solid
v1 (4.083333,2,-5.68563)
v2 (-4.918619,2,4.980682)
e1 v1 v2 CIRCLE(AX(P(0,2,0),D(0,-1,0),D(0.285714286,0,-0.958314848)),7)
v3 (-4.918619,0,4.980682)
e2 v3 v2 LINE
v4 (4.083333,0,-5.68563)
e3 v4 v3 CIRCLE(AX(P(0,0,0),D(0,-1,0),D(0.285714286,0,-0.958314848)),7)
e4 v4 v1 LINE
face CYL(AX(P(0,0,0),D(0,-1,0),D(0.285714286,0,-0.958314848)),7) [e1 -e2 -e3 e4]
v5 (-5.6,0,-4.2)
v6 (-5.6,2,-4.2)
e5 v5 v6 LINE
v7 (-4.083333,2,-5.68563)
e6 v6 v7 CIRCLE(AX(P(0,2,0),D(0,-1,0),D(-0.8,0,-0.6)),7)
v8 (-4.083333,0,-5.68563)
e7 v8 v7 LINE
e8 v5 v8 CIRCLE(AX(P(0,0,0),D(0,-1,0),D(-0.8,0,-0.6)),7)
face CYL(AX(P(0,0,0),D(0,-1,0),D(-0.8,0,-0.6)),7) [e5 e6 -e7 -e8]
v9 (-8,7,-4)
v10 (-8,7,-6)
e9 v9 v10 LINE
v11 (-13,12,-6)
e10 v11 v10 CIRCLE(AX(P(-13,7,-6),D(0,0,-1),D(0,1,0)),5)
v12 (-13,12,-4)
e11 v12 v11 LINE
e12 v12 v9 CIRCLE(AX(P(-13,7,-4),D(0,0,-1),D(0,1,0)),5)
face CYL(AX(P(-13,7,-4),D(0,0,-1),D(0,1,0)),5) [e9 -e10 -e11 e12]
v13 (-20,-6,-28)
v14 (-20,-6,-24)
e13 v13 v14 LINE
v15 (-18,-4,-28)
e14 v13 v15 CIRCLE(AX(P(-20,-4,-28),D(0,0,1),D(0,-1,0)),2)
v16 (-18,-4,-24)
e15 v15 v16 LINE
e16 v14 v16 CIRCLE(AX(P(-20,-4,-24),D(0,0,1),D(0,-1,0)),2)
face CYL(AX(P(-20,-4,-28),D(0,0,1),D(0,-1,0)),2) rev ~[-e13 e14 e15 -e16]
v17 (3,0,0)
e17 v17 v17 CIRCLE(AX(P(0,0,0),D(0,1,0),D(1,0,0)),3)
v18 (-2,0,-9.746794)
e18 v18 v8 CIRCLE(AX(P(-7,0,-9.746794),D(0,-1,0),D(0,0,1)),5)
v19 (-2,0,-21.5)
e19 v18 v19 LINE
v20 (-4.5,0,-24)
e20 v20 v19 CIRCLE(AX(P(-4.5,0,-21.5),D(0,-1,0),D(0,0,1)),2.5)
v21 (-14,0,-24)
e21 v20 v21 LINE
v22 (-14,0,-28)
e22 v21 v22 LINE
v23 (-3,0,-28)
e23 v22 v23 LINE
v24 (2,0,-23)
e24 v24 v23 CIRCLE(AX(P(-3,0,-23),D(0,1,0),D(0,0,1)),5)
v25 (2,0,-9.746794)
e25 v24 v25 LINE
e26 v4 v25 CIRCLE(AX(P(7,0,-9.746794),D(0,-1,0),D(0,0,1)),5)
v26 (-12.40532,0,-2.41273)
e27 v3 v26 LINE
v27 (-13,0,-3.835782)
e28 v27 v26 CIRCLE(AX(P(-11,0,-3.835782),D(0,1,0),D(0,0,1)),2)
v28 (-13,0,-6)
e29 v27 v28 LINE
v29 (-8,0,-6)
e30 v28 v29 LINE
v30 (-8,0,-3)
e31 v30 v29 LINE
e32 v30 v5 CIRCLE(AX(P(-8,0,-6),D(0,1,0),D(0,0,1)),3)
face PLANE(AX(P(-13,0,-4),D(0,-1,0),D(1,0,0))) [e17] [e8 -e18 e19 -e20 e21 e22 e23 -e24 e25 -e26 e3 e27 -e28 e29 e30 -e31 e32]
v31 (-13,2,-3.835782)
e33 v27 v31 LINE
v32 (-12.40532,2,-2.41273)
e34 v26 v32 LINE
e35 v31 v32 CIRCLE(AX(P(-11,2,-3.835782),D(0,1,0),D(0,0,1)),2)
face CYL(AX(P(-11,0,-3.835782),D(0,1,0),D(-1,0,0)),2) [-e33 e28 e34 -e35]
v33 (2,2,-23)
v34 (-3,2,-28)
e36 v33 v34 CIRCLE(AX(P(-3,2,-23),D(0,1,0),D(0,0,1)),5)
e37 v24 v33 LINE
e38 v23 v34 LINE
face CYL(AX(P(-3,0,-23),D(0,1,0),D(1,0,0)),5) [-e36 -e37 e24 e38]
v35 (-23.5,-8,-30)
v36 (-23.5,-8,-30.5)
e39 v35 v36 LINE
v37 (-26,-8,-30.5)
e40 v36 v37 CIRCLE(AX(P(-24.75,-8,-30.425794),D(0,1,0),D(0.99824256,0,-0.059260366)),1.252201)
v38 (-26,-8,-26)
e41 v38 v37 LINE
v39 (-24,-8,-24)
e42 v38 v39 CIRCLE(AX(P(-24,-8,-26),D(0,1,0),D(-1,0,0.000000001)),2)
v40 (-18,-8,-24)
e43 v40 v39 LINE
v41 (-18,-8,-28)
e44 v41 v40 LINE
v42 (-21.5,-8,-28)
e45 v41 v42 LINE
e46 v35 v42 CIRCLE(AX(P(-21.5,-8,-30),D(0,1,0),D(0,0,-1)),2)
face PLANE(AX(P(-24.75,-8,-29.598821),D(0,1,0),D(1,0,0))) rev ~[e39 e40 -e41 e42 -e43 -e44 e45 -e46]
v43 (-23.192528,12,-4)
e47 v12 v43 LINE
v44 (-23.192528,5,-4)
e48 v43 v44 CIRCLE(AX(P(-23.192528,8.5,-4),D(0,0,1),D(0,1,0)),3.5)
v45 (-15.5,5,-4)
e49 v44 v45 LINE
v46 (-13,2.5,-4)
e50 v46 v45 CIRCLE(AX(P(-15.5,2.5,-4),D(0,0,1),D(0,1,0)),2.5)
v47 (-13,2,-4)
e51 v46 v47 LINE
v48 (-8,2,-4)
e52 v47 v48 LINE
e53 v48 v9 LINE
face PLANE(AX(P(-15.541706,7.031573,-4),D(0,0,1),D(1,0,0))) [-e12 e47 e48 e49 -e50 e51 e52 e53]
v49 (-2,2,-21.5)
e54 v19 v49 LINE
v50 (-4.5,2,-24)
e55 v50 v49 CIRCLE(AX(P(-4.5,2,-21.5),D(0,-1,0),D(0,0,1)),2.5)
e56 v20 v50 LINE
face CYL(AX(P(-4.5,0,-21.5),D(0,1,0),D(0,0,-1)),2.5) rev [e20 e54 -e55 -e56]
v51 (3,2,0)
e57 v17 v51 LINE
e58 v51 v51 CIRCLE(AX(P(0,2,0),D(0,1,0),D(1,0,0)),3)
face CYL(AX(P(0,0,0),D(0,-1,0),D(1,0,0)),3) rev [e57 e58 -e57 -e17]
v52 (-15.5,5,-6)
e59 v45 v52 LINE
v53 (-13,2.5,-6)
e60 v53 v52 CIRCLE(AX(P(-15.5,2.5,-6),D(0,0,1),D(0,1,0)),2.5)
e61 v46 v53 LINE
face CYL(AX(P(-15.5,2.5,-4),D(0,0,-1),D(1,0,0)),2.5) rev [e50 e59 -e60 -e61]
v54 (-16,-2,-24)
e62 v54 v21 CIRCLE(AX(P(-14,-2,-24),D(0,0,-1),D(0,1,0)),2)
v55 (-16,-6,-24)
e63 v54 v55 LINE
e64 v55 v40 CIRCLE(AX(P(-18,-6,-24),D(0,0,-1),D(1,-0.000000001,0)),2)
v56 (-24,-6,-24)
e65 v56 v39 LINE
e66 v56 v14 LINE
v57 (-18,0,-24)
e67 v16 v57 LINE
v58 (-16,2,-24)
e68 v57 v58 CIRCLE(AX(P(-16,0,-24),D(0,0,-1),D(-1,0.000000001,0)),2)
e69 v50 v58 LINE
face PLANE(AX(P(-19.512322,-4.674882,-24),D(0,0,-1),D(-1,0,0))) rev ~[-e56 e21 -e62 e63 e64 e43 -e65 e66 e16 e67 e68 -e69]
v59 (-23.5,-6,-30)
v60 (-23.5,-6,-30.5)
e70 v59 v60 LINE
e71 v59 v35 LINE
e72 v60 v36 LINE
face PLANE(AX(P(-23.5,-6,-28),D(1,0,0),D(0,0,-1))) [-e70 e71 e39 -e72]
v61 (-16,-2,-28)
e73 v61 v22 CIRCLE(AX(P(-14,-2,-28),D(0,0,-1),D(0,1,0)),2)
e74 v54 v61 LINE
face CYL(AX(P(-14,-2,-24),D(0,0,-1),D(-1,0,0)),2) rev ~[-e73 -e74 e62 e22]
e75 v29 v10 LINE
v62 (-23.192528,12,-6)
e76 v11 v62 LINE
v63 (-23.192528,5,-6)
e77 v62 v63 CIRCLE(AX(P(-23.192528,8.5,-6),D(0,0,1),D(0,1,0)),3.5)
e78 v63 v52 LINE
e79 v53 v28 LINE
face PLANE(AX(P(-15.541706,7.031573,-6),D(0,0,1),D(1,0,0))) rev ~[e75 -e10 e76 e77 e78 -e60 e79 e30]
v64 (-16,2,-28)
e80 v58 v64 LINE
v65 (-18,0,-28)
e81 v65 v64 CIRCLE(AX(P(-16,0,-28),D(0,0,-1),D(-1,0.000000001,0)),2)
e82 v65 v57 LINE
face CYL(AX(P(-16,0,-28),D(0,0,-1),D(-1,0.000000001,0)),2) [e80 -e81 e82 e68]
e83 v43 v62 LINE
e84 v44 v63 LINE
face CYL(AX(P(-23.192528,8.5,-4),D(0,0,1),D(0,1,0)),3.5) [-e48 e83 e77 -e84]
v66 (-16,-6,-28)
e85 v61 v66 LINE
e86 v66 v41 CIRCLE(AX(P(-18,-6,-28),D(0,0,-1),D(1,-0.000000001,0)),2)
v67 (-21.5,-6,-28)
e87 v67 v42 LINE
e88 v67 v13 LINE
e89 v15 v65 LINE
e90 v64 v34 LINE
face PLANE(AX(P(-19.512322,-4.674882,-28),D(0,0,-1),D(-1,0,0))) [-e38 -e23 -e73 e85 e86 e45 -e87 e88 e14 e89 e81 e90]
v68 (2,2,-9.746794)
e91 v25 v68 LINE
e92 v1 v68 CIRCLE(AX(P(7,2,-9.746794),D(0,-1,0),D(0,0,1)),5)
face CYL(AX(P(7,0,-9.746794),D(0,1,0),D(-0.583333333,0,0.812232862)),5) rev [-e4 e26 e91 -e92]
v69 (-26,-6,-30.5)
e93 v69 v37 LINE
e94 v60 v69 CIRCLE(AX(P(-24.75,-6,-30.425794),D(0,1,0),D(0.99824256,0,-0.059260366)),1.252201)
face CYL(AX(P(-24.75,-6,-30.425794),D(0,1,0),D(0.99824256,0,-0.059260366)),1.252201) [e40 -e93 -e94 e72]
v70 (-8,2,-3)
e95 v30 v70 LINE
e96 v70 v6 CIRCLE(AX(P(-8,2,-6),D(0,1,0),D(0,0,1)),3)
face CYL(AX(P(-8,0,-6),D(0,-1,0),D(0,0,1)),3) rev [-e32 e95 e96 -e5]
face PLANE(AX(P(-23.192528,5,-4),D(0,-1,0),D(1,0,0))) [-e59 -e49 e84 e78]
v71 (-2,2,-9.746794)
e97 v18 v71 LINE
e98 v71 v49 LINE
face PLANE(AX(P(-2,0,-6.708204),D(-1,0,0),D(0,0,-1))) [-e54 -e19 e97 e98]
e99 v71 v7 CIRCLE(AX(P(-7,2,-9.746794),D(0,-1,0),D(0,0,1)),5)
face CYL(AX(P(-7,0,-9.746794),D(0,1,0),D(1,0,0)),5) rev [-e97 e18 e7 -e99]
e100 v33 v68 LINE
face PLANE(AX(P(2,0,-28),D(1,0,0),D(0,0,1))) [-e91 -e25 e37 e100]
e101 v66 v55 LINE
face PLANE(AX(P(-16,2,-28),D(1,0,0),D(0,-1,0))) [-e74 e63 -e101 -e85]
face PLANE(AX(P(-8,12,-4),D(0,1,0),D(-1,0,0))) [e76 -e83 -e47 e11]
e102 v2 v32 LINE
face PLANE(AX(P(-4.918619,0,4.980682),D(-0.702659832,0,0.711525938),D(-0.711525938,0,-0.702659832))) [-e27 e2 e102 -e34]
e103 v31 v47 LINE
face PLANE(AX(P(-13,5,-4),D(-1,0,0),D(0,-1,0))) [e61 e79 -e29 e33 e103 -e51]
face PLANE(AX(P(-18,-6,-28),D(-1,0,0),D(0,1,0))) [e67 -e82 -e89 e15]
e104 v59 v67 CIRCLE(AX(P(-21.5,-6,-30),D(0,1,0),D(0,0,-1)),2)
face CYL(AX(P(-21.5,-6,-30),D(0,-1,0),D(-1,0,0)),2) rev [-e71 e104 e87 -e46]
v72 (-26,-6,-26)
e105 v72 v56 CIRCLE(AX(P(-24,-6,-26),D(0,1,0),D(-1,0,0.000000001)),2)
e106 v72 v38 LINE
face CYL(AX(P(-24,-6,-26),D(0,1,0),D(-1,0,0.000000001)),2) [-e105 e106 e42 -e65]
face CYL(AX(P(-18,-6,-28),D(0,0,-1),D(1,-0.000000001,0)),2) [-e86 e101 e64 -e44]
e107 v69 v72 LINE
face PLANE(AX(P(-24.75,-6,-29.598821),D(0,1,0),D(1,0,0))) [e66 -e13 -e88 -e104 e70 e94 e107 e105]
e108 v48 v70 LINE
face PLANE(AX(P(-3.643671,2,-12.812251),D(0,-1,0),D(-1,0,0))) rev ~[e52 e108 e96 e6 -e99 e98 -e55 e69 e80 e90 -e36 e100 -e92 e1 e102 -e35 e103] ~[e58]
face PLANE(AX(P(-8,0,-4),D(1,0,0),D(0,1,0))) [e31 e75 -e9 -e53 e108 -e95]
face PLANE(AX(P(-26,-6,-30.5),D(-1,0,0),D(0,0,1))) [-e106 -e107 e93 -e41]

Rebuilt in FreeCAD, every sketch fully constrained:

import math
import FreeCAD as App
import Part
import Sketcher
Q = App.Units.Quantity


def edges_at(feature, points):
    """Names of the edges that pass closest to the given points."""
    edges = feature.Shape.Edges
    near = lambda p: min(range(len(edges)), key=lambda i: edges[i].distToShape(Part.Vertex(*p))[0])
    return sorted({f"Edge{near(p) + 1}" for p in points})

doc = App.newDocument("Part")
body = doc.addObject("PartDesign::Body", "Body")

# Sketch on XZ plane
sketch1 = doc.addObject("Sketcher::SketchObject", "Sketch")
body.addObject(sketch1)
sketch1.AttachmentSupport = (doc.XZ_Plane, [""])
sketch1.MapMode = "FlatFace"
sketch1.addGeometry(Part.ArcOfCircle(Part.Circle(App.Vector(0, 0, 0), App.Vector(0, 0, 1), 7), math.radians(-73), math.radians(135)), False)
sketch1.addGeometry(Part.LineSegment(App.Vector(2, -6.7, 0), App.Vector(2, -28, 0)), False)
sketch1.addGeometry(Part.LineSegment(App.Vector(2, -28, 0), App.Vector(-16, -28, 0)), False)
sketch1.addGeometry(Part.LineSegment(App.Vector(-16, -28, 0), App.Vector(-16, -24, 0)), False)
sketch1.addGeometry(Part.LineSegment(App.Vector(-16, -24, 0), App.Vector(-2, -24, 0)), False)
sketch1.addGeometry(Part.LineSegment(App.Vector(-2, -24, 0), App.Vector(-2, -6.7, 0)), False)
sketch1.addGeometry(Part.ArcOfCircle(Part.Circle(App.Vector(0, 0, 0), App.Vector(0, 0, 1), 7), math.radians(-143), math.radians(-107)), False)
sketch1.addGeometry(Part.ArcOfCircle(Part.Circle(App.Vector(-8, -6, 0), App.Vector(0, 0, 1), 3), math.radians(37), math.radians(90)), False)
sketch1.addGeometry(Part.LineSegment(App.Vector(-8, -3, 0), App.Vector(-8, -4, 0)), False)
sketch1.addGeometry(Part.LineSegment(App.Vector(-8, -4, 0), App.Vector(-13, -4, 0)), False)
sketch1.addGeometry(Part.LineSegment(App.Vector(-13, -4, 0), App.Vector(-13, -3, 0)), False)
sketch1.addGeometry(Part.LineSegment(App.Vector(-13, -3, 0), App.Vector(-4.9, 5, 0)), False)
sketch1.addGeometry(Part.Circle(App.Vector(0, 0, 0), App.Vector(0, 0, 1), 3), False)
sketch1.addConstraint(Sketcher.Constraint("Coincident", 0, 1, 1, 1))
sketch1.addConstraint(Sketcher.Constraint("Coincident", 1, 2, 2, 1))
sketch1.addConstraint(Sketcher.Constraint("Coincident", 2, 2, 3, 1))
sketch1.addConstraint(Sketcher.Constraint("Coincident", 3, 2, 4, 1))
sketch1.addConstraint(Sketcher.Constraint("Coincident", 4, 2, 5, 1))
sketch1.addConstraint(Sketcher.Constraint("Coincident", 5, 2, 6, 2))
sketch1.addConstraint(Sketcher.Constraint("Tangent", 6, 1, 7, 1))
sketch1.addConstraint(Sketcher.Constraint("Coincident", 7, 2, 8, 1))
sketch1.addConstraint(Sketcher.Constraint("Coincident", 8, 2, 9, 1))
sketch1.addConstraint(Sketcher.Constraint("Coincident", 9, 2, 10, 1))
sketch1.addConstraint(Sketcher.Constraint("Coincident", 10, 2, 11, 1))
sketch1.addConstraint(Sketcher.Constraint("Tangent", 11, 2, 0, 2))
sketch1.addConstraint(Sketcher.Constraint("Vertical", 1))
sketch1.addConstraint(Sketcher.Constraint("Horizontal", 2))
sketch1.addConstraint(Sketcher.Constraint("Vertical", 3))
sketch1.addConstraint(Sketcher.Constraint("Horizontal", 4))
sketch1.addConstraint(Sketcher.Constraint("Vertical", 5))
sketch1.addConstraint(Sketcher.Constraint("Vertical", 8))
sketch1.addConstraint(Sketcher.Constraint("Horizontal", 9))
sketch1.addConstraint(Sketcher.Constraint("Vertical", 10))
sketch1.addConstraint(Sketcher.Constraint("Coincident", 0, 3, -1, 1))
sketch1.addConstraint(Sketcher.Constraint("Coincident", 6, 3, -1, 1))
sketch1.addConstraint(Sketcher.Constraint("Coincident", 12, 3, -1, 1))
sketch1.addConstraint(Sketcher.Constraint("Equal", 0, 6))
sketch1.addConstraint(Sketcher.Constraint("Equal", 7, 12))
sketch1.addConstraint(Sketcher.Constraint("Horizontal", 0, 1, 5, 2))
sketch1.addConstraint(Sketcher.Constraint("Horizontal", 7, 2, 10, 2))
sketch1.addConstraint(Sketcher.Constraint("Diameter", 12, Q("6 mm")))
sketch1.addConstraint(Sketcher.Constraint("Radius", 0, Q("7 mm")))
sketch1.addConstraint(Sketcher.Constraint("DistanceX", 2, 2, 2, 1, Q("18 mm")))
sketch1.addConstraint(Sketcher.Constraint("DistanceX", 4, 1, 4, 2, Q("14 mm")))
sketch1.addConstraint(Sketcher.Constraint("DistanceX", 9, 2, 9, 1, Q("5 mm")))
sketch1.addConstraint(Sketcher.Constraint("DistanceY", 3, 1, 3, 2, Q("4 mm")))
sketch1.addConstraint(Sketcher.Constraint("DistanceY", 8, 2, 8, 1, Q("1 mm")))
sketch1.addConstraint(Sketcher.Constraint("DistanceX", 7, 3, -1, 1, Q("8 mm")))
sketch1.addConstraint(Sketcher.Constraint("DistanceY", 1, 2, -1, 1, Q("28 mm")))
sketch1.addConstraint(Sketcher.Constraint("DistanceX", 7, 2, -1, 1, Q("8 mm")))
pad1 = doc.addObject("PartDesign::Pad", "Pad")
body.addObject(pad1)
pad1.Profile = sketch1
pad1.Length = 2
pad1.Reversed = True

# Sketch on XY plane
sketch2 = doc.addObject("Sketcher::SketchObject", "Sketch001")
body.addObject(sketch2)
sketch2.AttachmentSupport = (doc.XY_Plane, [""])
sketch2.MapMode = "FlatFace"
sketch2.AttachmentOffset = App.Placement(App.Vector(0, 0, -4), App.Rotation())
sketch2.addGeometry(Part.LineSegment(App.Vector(-23.2, 12, 0), App.Vector(-8, 12, 0)), False)
sketch2.addGeometry(Part.LineSegment(App.Vector(-8, 12, 0), App.Vector(-8, 0, 0)), False)
sketch2.addGeometry(Part.LineSegment(App.Vector(-8, 0, 0), App.Vector(-13, 0, 0)), False)
sketch2.addGeometry(Part.LineSegment(App.Vector(-13, 0, 0), App.Vector(-13, 5, 0)), False)
sketch2.addGeometry(Part.LineSegment(App.Vector(-13, 5, 0), App.Vector(-23.2, 5, 0)), False)
sketch2.addGeometry(Part.ArcOfCircle(Part.Circle(App.Vector(-23.2, 8.5, 0), App.Vector(0, 0, 1), 3.5), math.radians(90), math.radians(270)), False)
sketch2.addConstraint(Sketcher.Constraint("Coincident", 0, 2, 1, 1))
sketch2.addConstraint(Sketcher.Constraint("Coincident", 1, 2, 2, 1))
sketch2.addConstraint(Sketcher.Constraint("Coincident", 2, 2, 3, 1))
sketch2.addConstraint(Sketcher.Constraint("Coincident", 3, 2, 4, 1))
sketch2.addConstraint(Sketcher.Constraint("Tangent", 4, 2, 5, 2))
sketch2.addConstraint(Sketcher.Constraint("Tangent", 5, 1, 0, 1))
sketch2.addConstraint(Sketcher.Constraint("Horizontal", 0))
sketch2.addConstraint(Sketcher.Constraint("Vertical", 1))
sketch2.addConstraint(Sketcher.Constraint("Horizontal", 2))
sketch2.addConstraint(Sketcher.Constraint("Vertical", 3))
sketch2.addConstraint(Sketcher.Constraint("Horizontal", 4))
sketch2.addConstraint(Sketcher.Constraint("PointOnObject", 1, 2, -1))
sketch2.addConstraint(Sketcher.Constraint("Equal", 2, 3))
sketch2.addConstraint(Sketcher.Constraint("Radius", 5, Q("3.5 mm")))
sketch2.addConstraint(Sketcher.Constraint("DistanceX", 2, 2, 2, 1, Q("5 mm")))
sketch2.addConstraint(Sketcher.Constraint("DistanceX", 0, 2, -1, 1, Q("8 mm")))
sketch2.addConstraint(Sketcher.Constraint("DistanceX", 0, 1, 0, 2, Q("15.192528 mm")))
pad2 = doc.addObject("PartDesign::Pad", "Pad001")
body.addObject(pad2)
pad2.Profile = sketch2
pad2.Length = 2
pad2.Reversed = True
doc.recompute()

fillet = doc.addObject("PartDesign::Fillet", "Fillet")
body.addObject(fillet)
fillet.Base = (pad2, edges_at(pad2, [(-8, 12, -5)]))
fillet.Radius = 5
doc.recompute()

fillet2 = doc.addObject("PartDesign::Fillet", "Fillet001")
body.addObject(fillet2)
fillet2.Base = (fillet, edges_at(fillet, [(-13, 5, -5)]))
fillet2.Radius = 2.5
doc.recompute()

fillet3 = doc.addObject("PartDesign::Fillet", "Fillet002")
body.addObject(fillet3)
fillet3.Base = (fillet2, edges_at(fillet2, [(2, 1, -6.708)]))
fillet3.Radius = 5
doc.recompute()

fillet4 = doc.addObject("PartDesign::Fillet", "Fillet003")
body.addObject(fillet4)
fillet4.Base = (fillet3, edges_at(fillet3, [(-2, 1, -6.708)]))
fillet4.Radius = 5
doc.recompute()

fillet5 = doc.addObject("PartDesign::Fillet", "Fillet004")
body.addObject(fillet5)
fillet5.Base = (fillet4, edges_at(fillet4, [(-13, 1, -3)]))
fillet5.Radius = 2
doc.recompute()

fillet6 = doc.addObject("PartDesign::Fillet", "Fillet005")
body.addObject(fillet6)
fillet6.Base = (fillet5, edges_at(fillet5, [(2, 1, -28)]))
fillet6.Radius = 5
doc.recompute()

fillet7 = doc.addObject("PartDesign::Fillet", "Fillet006")
body.addObject(fillet7)
fillet7.Base = (fillet6, edges_at(fillet6, [(-2, 1, -24)]))
fillet7.Radius = 2.5

# Sketch on XY plane
sketch3 = doc.addObject("Sketcher::SketchObject", "Sketch002")
body.addObject(sketch3)
sketch3.AttachmentSupport = (doc.XY_Plane, [""])
sketch3.MapMode = "FlatFace"
sketch3.AttachmentOffset = App.Placement(App.Vector(0, 0, -28), App.Rotation())
sketch3.addGeometry(Part.LineSegment(App.Vector(-16, 2, 0), App.Vector(-16, -6, 0)), False)
sketch3.addGeometry(Part.ArcOfCircle(Part.Circle(App.Vector(-18, -6, 0), App.Vector(0, 0, 1), 2), math.radians(-90), math.radians(0)), False)
sketch3.addGeometry(Part.LineSegment(App.Vector(-18, -8, 0), App.Vector(-26, -8, 0)), False)
sketch3.addGeometry(Part.LineSegment(App.Vector(-26, -8, 0), App.Vector(-26, -6, 0)), False)
sketch3.addGeometry(Part.LineSegment(App.Vector(-26, -6, 0), App.Vector(-18, -6, 0)), False)
sketch3.addGeometry(Part.LineSegment(App.Vector(-18, -6, 0), App.Vector(-18, 0, 0)), False)
sketch3.addGeometry(Part.ArcOfCircle(Part.Circle(App.Vector(-16, 0, 0), App.Vector(0, 0, 1), 2), math.radians(90), math.radians(180)), False)
sketch3.addConstraint(Sketcher.Constraint("Tangent", 0, 2, 1, 2))
sketch3.addConstraint(Sketcher.Constraint("Tangent", 1, 1, 2, 1))
sketch3.addConstraint(Sketcher.Constraint("Coincident", 2, 2, 3, 1))
sketch3.addConstraint(Sketcher.Constraint("Coincident", 3, 2, 4, 1))
sketch3.addConstraint(Sketcher.Constraint("Coincident", 4, 2, 5, 1))
sketch3.addConstraint(Sketcher.Constraint("Tangent", 5, 2, 6, 2))
sketch3.addConstraint(Sketcher.Constraint("Coincident", 6, 1, 0, 1))
sketch3.addConstraint(Sketcher.Constraint("Vertical", 0))
sketch3.addConstraint(Sketcher.Constraint("Horizontal", 2))
sketch3.addConstraint(Sketcher.Constraint("Vertical", 3))
sketch3.addConstraint(Sketcher.Constraint("Horizontal", 4))
sketch3.addConstraint(Sketcher.Constraint("Vertical", 5))
sketch3.addConstraint(Sketcher.Constraint("Coincident", 4, 2, 1, 3))
sketch3.addConstraint(Sketcher.Constraint("Equal", 1, 6))
sketch3.addConstraint(Sketcher.Constraint("PointOnObject", 6, 3, -1))
sketch3.addConstraint(Sketcher.Constraint("Equal", 4, 0))
sketch3.addConstraint(Sketcher.Constraint("Radius", 1, Q("2 mm")))
sketch3.addConstraint(Sketcher.Constraint("DistanceX", 2, 2, 2, 1, Q("8 mm")))
sketch3.addConstraint(Sketcher.Constraint("DistanceX", 1, 3, -1, 1, Q("18 mm")))
pad3 = doc.addObject("PartDesign::Pad", "Pad002")
body.addObject(pad3)
pad3.Profile = sketch3
pad3.Length = 4
doc.recompute()

fillet8 = doc.addObject("PartDesign::Fillet", "Fillet007")
body.addObject(fillet8)
fillet8.Base = (pad3, edges_at(pad3, [(-18, -6, -26)]))
fillet8.Radius = 2
doc.recompute()

fillet9 = doc.addObject("PartDesign::Fillet", "Fillet008")
body.addObject(fillet9)
fillet9.Base = (fillet8, edges_at(fillet8, [(-16, 0, -26)]))
fillet9.Radius = 2

# Sketch on XZ plane
sketch4 = doc.addObject("Sketcher::SketchObject", "Sketch003")
body.addObject(sketch4)
sketch4.AttachmentSupport = (doc.XZ_Plane, [""])
sketch4.MapMode = "FlatFace"
sketch4.AttachmentOffset = App.Placement(App.Vector(0, 0, 6), App.Rotation())
sketch4.addGeometry(Part.LineSegment(App.Vector(-23.5, -28, 0), App.Vector(-23.5, -30.5, 0)), False)
sketch4.addGeometry(Part.ArcOfCircle(Part.Circle(App.Vector(-24.8, -30.4, 0), App.Vector(0, 0, 1), 1.3), math.radians(-177), math.radians(-3)), False)
sketch4.addGeometry(Part.LineSegment(App.Vector(-26, -30.5, 0), App.Vector(-26, -28, 0)), False)
sketch4.addGeometry(Part.LineSegment(App.Vector(-26, -28, 0), App.Vector(-23.5, -28, 0)), False)
sketch4.addConstraint(Sketcher.Constraint("Coincident", 0, 2, 1, 2))
sketch4.addConstraint(Sketcher.Constraint("Coincident", 1, 1, 2, 1))
sketch4.addConstraint(Sketcher.Constraint("Coincident", 2, 2, 3, 1))
sketch4.addConstraint(Sketcher.Constraint("Coincident", 3, 2, 0, 1))
sketch4.addConstraint(Sketcher.Constraint("Vertical", 0))
sketch4.addConstraint(Sketcher.Constraint("Vertical", 2))
sketch4.addConstraint(Sketcher.Constraint("Horizontal", 3))
sketch4.addConstraint(Sketcher.Constraint("Horizontal", 0, 2, 1, 1))
sketch4.addConstraint(Sketcher.Constraint("Equal", 3, 0))
sketch4.addConstraint(Sketcher.Constraint("DistanceX", 3, 1, 3, 2, Q("2.5 mm")))
sketch4.addConstraint(Sketcher.Constraint("DistanceX", 1, 1, -1, 1, Q("26 mm")))
sketch4.addConstraint(Sketcher.Constraint("DistanceY", 2, 2, -1, 1, Q("28 mm")))
sketch4.addConstraint(Sketcher.Constraint("Radius", 1, Q("1.252201 mm")))
pad4 = doc.addObject("PartDesign::Pad", "Pad003")
body.addObject(pad4)
pad4.Profile = sketch4
pad4.Length = 2
doc.recompute()

fillet10 = doc.addObject("PartDesign::Fillet", "Fillet009")
body.addObject(fillet10)
fillet10.Base = (pad4, edges_at(pad4, [(-23.5, -7, -28)]))
fillet10.Radius = 2

# Sketch on XZ plane
sketch5 = doc.addObject("Sketcher::SketchObject", "Sketch004")
body.addObject(sketch5)
sketch5.AttachmentSupport = (doc.XZ_Plane, [""])
sketch5.MapMode = "FlatFace"
sketch5.AttachmentOffset = App.Placement(App.Vector(0, 0, 6), App.Rotation())
sketch5.addGeometry(Part.LineSegment(App.Vector(-26, -26, 0), App.Vector(-26, -24, 0)), False)
sketch5.addGeometry(Part.LineSegment(App.Vector(-26, -24, 0), App.Vector(-24, -24, 0)), False)
sketch5.addGeometry(Part.ArcOfCircle(Part.Circle(App.Vector(-24, -26, 0), App.Vector(0, 0, 1), 2), math.radians(90), math.radians(180)), False)
sketch5.addConstraint(Sketcher.Constraint("Coincident", 0, 2, 1, 1))
sketch5.addConstraint(Sketcher.Constraint("Tangent", 1, 2, 2, 1))
sketch5.addConstraint(Sketcher.Constraint("Tangent", 2, 2, 0, 1))
sketch5.addConstraint(Sketcher.Constraint("Vertical", 0))
sketch5.addConstraint(Sketcher.Constraint("Horizontal", 1))
sketch5.addConstraint(Sketcher.Constraint("Radius", 2, Q("2 mm")))
sketch5.addConstraint(Sketcher.Constraint("DistanceX", 2, 3, -1, 1, Q("24 mm")))
sketch5.addConstraint(Sketcher.Constraint("DistanceY", 2, 3, -1, 1, Q("26 mm")))
pocket1 = doc.addObject("PartDesign::Pocket", "Pocket")
body.addObject(pocket1)
pocket1.Profile = sketch5
pocket1.Length = 2
pocket1.Reversed = True

doc.recompute()
